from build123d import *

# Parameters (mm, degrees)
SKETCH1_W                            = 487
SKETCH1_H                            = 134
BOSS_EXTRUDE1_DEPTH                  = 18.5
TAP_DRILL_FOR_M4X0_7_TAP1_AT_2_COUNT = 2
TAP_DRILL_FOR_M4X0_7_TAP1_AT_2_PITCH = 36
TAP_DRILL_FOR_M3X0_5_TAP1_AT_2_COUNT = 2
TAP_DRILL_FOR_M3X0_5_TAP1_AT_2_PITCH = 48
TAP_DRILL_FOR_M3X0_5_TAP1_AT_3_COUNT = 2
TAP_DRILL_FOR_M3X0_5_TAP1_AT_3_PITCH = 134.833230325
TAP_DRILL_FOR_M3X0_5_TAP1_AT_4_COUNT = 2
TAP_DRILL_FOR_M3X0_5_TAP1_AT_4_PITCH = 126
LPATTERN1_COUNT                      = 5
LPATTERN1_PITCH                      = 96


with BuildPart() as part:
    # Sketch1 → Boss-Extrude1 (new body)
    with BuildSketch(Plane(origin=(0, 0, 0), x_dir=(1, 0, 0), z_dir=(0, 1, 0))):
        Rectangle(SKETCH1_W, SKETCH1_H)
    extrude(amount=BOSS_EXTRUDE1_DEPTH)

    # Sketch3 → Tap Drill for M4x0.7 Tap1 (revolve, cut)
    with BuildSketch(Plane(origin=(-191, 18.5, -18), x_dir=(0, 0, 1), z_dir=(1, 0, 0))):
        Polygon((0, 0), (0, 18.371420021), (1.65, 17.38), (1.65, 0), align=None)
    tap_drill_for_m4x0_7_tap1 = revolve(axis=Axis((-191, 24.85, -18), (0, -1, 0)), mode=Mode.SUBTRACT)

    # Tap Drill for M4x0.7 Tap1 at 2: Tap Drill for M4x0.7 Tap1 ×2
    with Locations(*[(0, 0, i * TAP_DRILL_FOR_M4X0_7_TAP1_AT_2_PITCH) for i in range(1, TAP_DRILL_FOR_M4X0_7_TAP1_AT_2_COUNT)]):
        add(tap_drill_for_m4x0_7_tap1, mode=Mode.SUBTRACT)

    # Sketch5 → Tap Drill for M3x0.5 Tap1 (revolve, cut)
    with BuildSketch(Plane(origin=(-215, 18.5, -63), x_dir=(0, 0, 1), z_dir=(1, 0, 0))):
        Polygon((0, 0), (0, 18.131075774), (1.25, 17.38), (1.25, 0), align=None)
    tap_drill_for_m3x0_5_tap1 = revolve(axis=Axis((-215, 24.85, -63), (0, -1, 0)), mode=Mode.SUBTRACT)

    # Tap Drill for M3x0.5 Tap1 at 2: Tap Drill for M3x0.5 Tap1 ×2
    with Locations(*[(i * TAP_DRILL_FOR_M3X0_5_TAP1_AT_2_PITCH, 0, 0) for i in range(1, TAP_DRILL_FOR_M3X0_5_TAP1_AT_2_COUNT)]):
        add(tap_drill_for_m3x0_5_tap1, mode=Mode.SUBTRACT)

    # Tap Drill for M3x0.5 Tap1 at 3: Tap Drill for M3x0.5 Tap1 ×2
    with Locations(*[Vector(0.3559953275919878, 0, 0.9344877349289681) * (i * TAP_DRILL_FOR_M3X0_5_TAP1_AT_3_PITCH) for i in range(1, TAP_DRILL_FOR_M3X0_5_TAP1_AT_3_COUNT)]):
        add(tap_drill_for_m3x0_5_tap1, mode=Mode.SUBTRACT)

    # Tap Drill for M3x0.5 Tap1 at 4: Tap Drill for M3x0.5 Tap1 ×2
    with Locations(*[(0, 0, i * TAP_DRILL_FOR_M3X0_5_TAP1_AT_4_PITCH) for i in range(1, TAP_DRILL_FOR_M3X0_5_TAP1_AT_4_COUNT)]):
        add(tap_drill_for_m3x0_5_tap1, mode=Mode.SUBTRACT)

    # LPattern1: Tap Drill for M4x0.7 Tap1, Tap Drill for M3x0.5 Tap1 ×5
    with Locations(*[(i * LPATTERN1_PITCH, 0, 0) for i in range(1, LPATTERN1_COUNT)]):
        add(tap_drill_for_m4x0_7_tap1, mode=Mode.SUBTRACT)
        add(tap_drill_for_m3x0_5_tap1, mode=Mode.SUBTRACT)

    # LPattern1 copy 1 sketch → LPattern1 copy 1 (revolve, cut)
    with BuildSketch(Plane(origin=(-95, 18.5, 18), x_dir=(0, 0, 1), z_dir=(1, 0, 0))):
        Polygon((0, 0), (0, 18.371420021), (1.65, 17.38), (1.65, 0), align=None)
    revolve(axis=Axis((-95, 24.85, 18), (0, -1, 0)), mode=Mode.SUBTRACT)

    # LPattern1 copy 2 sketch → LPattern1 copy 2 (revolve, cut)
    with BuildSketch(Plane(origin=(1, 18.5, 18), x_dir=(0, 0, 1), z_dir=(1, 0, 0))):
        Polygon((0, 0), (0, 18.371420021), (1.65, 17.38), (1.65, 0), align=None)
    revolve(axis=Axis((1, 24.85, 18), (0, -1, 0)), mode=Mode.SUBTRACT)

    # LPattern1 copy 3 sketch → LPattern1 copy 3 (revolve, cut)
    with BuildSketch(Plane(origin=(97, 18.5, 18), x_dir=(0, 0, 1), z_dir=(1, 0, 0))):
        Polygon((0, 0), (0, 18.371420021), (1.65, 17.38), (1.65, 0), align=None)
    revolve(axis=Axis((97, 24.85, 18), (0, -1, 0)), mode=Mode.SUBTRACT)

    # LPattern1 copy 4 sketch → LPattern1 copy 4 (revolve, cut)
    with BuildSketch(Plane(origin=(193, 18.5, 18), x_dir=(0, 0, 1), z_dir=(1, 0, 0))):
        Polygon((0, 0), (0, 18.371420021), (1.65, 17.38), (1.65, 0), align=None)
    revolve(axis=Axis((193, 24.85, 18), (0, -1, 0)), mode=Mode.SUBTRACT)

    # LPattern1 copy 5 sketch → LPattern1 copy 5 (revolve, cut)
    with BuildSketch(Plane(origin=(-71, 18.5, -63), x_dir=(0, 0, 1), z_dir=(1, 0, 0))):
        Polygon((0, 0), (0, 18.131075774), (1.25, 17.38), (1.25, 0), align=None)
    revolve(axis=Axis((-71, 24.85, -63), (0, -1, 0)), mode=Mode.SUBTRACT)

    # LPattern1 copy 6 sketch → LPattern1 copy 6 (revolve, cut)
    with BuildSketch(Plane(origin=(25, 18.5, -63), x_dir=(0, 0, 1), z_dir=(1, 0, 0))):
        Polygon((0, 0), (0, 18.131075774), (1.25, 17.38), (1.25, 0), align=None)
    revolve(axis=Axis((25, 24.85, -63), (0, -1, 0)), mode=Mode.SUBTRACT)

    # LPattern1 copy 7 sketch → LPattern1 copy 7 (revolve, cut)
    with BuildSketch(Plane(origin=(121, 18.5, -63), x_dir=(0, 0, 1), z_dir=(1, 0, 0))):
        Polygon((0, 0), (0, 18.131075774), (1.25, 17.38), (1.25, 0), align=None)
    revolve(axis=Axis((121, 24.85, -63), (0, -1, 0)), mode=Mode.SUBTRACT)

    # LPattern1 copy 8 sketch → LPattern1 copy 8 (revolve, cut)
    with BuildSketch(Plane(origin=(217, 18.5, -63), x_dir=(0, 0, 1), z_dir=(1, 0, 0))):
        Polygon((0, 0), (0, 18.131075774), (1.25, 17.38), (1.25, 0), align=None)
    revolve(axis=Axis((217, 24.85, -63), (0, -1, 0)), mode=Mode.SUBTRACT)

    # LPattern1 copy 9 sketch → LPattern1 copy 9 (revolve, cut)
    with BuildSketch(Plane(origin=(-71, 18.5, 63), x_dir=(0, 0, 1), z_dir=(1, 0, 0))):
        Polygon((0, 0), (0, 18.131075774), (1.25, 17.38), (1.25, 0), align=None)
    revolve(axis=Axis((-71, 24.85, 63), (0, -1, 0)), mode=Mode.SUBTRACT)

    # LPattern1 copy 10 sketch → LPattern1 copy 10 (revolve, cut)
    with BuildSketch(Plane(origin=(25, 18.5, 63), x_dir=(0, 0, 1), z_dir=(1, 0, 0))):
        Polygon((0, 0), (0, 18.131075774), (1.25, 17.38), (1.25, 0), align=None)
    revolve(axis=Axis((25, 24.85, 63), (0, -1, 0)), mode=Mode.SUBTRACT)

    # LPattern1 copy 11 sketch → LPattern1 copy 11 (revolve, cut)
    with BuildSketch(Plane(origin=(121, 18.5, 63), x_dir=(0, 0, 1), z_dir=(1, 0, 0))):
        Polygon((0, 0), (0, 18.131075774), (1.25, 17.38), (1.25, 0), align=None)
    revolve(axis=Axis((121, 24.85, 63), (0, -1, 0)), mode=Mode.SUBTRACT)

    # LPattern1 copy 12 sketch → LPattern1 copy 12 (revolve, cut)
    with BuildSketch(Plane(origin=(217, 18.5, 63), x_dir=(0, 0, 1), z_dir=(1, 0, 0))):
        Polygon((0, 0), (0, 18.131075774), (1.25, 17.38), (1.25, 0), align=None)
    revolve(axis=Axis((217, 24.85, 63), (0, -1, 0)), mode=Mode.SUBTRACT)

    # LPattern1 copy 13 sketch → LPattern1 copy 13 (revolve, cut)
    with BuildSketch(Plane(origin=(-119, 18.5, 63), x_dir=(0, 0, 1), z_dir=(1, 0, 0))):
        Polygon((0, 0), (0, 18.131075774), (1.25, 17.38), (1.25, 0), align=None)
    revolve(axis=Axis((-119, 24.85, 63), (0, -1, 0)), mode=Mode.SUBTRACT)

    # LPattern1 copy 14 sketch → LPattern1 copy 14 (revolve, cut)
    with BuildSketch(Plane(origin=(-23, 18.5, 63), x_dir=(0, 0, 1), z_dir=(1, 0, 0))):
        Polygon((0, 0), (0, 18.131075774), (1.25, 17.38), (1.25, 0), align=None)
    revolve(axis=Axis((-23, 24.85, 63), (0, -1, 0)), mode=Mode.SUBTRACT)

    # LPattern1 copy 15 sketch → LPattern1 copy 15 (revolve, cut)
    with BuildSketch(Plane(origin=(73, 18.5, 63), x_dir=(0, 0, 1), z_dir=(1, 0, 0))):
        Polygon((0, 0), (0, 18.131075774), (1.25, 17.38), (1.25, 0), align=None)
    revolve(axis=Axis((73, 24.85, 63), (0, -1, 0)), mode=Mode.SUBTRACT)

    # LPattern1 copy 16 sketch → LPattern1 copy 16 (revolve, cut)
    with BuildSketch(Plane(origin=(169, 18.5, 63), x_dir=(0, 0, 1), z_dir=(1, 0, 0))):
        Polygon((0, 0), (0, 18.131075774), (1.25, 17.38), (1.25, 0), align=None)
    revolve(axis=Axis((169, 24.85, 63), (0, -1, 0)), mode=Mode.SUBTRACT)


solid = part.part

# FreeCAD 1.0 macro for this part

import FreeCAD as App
import Part
import Sketcher
Q = App.Units.Quantity

doc = App.newDocument("Part")
body = doc.addObject("PartDesign::Body", "Body")

sketch1 = body.newObject("Sketcher::SketchObject", "Sketch")
sketch1.AttachmentSupport = (doc.getObject("XZ_Plane"), [""])
sketch1.MapMode = "FlatFace"
sketch1.addGeometry(Part.LineSegment(App.Vector(-244, -67, 0), App.Vector(-244, 67, 0)), False)
sketch1.addGeometry(Part.LineSegment(App.Vector(-244, 67, 0), App.Vector(244, 67, 0)), False)
sketch1.addGeometry(Part.LineSegment(App.Vector(244, 67, 0), App.Vector(244, -67, 0)), False)
sketch1.addGeometry(Part.LineSegment(App.Vector(244, -67, 0), App.Vector(-244, -67, 0)), False)
sketch1.addConstraint(Sketcher.Constraint("Coincident", 0, 2, 1, 1))
sketch1.addConstraint(Sketcher.Constraint("Coincident", 1, 2, 2, 1))
sketch1.addConstraint(Sketcher.Constraint("Coincident", 2, 2, 3, 1))
sketch1.addConstraint(Sketcher.Constraint("Coincident", 3, 2, 0, 1))
sketch1.addConstraint(Sketcher.Constraint("Vertical", 0))
sketch1.addConstraint(Sketcher.Constraint("Horizontal", 1))
sketch1.addConstraint(Sketcher.Constraint("Vertical", 2))
sketch1.addConstraint(Sketcher.Constraint("Horizontal", 3))
sketch1.addConstraint(Sketcher.Constraint("Symmetric", 0, 2, 2, 2, -1, 1))
sketch1.addConstraint(Sketcher.Constraint("DistanceX", 1, 1, 1, 2, Q("487 mm")))
sketch1.addConstraint(Sketcher.Constraint("DistanceY", 0, 1, 0, 2, Q("134 mm")))
pad1 = body.newObject("PartDesign::Pad", "Pad")
pad1.Profile = sketch1
pad1.Length = 18.5
pad1.Reversed = True

sketch2 = body.newObject("Sketcher::SketchObject", "Sketch001")
sketch2.AttachmentSupport = (doc.getObject("YZ_Plane"), [""])
sketch2.MapMode = "FlatFace"
sketch2.AttachmentOffset = App.Placement(App.Vector(0, 0, -191), App.Rotation())
sketch2.addGeometry(Part.LineSegment(App.Vector(0.1, -18, 0), App.Vector(18.5, -18, 0)), False)
sketch2.addGeometry(Part.LineSegment(App.Vector(18.5, -18, 0), App.Vector(18.5, -16.4, 0)), False)
sketch2.addGeometry(Part.LineSegment(App.Vector(18.5, -16.4, 0), App.Vector(1.1, -16.4, 0)), False)
sketch2.addGeometry(Part.LineSegment(App.Vector(1.1, -16.4, 0), App.Vector(0.1, -18, 0)), False)
sketch2.addGeometry(Part.LineSegment(App.Vector(18.5, -18, 0), App.Vector(0.1, -18, 0)), True)
sketch2.addConstraint(Sketcher.Constraint("Coincident", 0, 2, 1, 1))
sketch2.addConstraint(Sketcher.Constraint("Coincident", 1, 2, 2, 1))
sketch2.addConstraint(Sketcher.Constraint("Coincident", 2, 2, 3, 1))
sketch2.addConstraint(Sketcher.Constraint("Coincident", 3, 2, 0, 1))
sketch2.addConstraint(Sketcher.Constraint("Horizontal", 0))
sketch2.addConstraint(Sketcher.Constraint("Vertical", 1))
sketch2.addConstraint(Sketcher.Constraint("Horizontal", 2))
sketch2.addConstraint(Sketcher.Constraint("Horizontal", 4))
sketch2.addConstraint(Sketcher.Constraint("Coincident", 4, 1, 0, 2))
sketch2.addConstraint(Sketcher.Constraint("Equal", 0, 4))
sketch2.addConstraint(Sketcher.Constraint("Angle", 3, Q("-121 deg")))
sketch2.addConstraint(Sketcher.Constraint("DistanceY", 0, 2, -1, 1, Q("18 mm")))
sketch2.addConstraint(Sketcher.Constraint("DistanceX", 2, 2, 2, 1, Q("17.38 mm")))
sketch2.addConstraint(Sketcher.Constraint("DistanceY", 1, 1, 1, 2, Q("1.65 mm")))
sketch2.addConstraint(Sketcher.Constraint("DistanceX", -1, 1, 0, 2, Q("18.5 mm")))
groove = body.newObject("PartDesign::Groove", "Groove")
groove.Profile = sketch2
groove.ReferenceAxis = (sketch2, ["Axis0"])
groove.Angle = 360
doc.recompute()

linearpattern = body.newObject("PartDesign::LinearPattern", "LinearPattern")
linearpattern.Originals = [groove]
linearpattern.Direction = (doc.getObject("Z_Axis"), [""])
linearpattern.Mode = "offset"
linearpattern.Offset = 36
linearpattern.Occurrences = 2
body.Tip = linearpattern

sketch3 = body.newObject("Sketcher::SketchObject", "Sketch002")
sketch3.AttachmentSupport = (doc.getObject("YZ_Plane"), [""])
sketch3.MapMode = "FlatFace"
sketch3.AttachmentOffset = App.Placement(App.Vector(0, 0, -215), App.Rotation())
sketch3.addGeometry(Part.LineSegment(App.Vector(0.4, -63, 0), App.Vector(18.5, -63, 0)), False)
sketch3.addGeometry(Part.LineSegment(App.Vector(18.5, -63, 0), App.Vector(18.5, -61.8, 0)), False)
sketch3.addGeometry(Part.LineSegment(App.Vector(18.5, -61.8, 0), App.Vector(1.1, -61.8, 0)), False)
sketch3.addGeometry(Part.LineSegment(App.Vector(1.1, -61.8, 0), App.Vector(0.4, -63, 0)), False)
sketch3.addGeometry(Part.LineSegment(App.Vector(18.5, -63, 0), App.Vector(0.4, -63, 0)), True)
sketch3.addConstraint(Sketcher.Constraint("Coincident", 0, 2, 1, 1))
sketch3.addConstraint(Sketcher.Constraint("Coincident", 1, 2, 2, 1))
sketch3.addConstraint(Sketcher.Constraint("Coincident", 2, 2, 3, 1))
sketch3.addConstraint(Sketcher.Constraint("Coincident", 3, 2, 0, 1))
sketch3.addConstraint(Sketcher.Constraint("Horizontal", 0))
sketch3.addConstraint(Sketcher.Constraint("Vertical", 1))
sketch3.addConstraint(Sketcher.Constraint("Horizontal", 2))
sketch3.addConstraint(Sketcher.Constraint("Horizontal", 4))
sketch3.addConstraint(Sketcher.Constraint("Coincident", 4, 1, 0, 2))
sketch3.addConstraint(Sketcher.Constraint("Equal", 0, 4))
sketch3.addConstraint(Sketcher.Constraint("Angle", 3, Q("-121 deg")))
sketch3.addConstraint(Sketcher.Constraint("DistanceY", 0, 2, -1, 1, Q("63 mm")))
sketch3.addConstraint(Sketcher.Constraint("DistanceX", 2, 2, 2, 1, Q("17.38 mm")))
sketch3.addConstraint(Sketcher.Constraint("DistanceY", 1, 1, 1, 2, Q("1.25 mm")))
sketch3.addConstraint(Sketcher.Constraint("DistanceX", -1, 1, 0, 2, Q("18.5 mm")))
groove2 = body.newObject("PartDesign::Groove", "Groove001")
groove2.Profile = sketch3
groove2.ReferenceAxis = (sketch3, ["Axis0"])
groove2.Angle = 360
doc.recompute()

linearpattern2 = body.newObject("PartDesign::LinearPattern", "LinearPattern001")
linearpattern2.Originals = [groove2]
linearpattern2.Direction = (doc.getObject("X_Axis"), [""])
linearpattern2.Mode = "offset"
linearpattern2.Offset = 48
linearpattern2.Occurrences = 2
body.Tip = linearpattern2
doc.recompute()

datumline = body.newObject("PartDesign::Line", "DatumLine")
datumline.Placement = App.Placement(App.Vector(0, 0, 0), App.Rotation(App.Vector(0, 0, 1), App.Vector(0.355995328, 0, 0.934487735)))
linearpattern3 = body.newObject("PartDesign::LinearPattern", "LinearPattern002")
linearpattern3.Originals = [groove2]
linearpattern3.Direction = (datumline, [""])
linearpattern3.Mode = "offset"
linearpattern3.Offset = 134.83323
linearpattern3.Occurrences = 2
body.Tip = linearpattern3
doc.recompute()

linearpattern4 = body.newObject("PartDesign::LinearPattern", "LinearPattern003")
linearpattern4.Originals = [groove2]
linearpattern4.Direction = (doc.getObject("Z_Axis"), [""])
linearpattern4.Mode = "offset"
linearpattern4.Offset = 126
linearpattern4.Occurrences = 2
body.Tip = linearpattern4
doc.recompute()

linearpattern5 = body.newObject("PartDesign::LinearPattern", "LinearPattern004")
linearpattern5.Originals = [groove, groove2]
linearpattern5.Direction = (doc.getObject("X_Axis"), [""])
linearpattern5.Mode = "offset"
linearpattern5.Offset = 96
linearpattern5.Occurrences = 5
body.Tip = linearpattern5

sketch4 = body.newObject("Sketcher::SketchObject", "Sketch003")
sketch4.AttachmentSupport = (doc.getObject("YZ_Plane"), [""])
sketch4.MapMode = "FlatFace"
sketch4.AttachmentOffset = App.Placement(App.Vector(0, 0, -95), App.Rotation())
sketch4.addGeometry(Part.LineSegment(App.Vector(0.1, 18, 0), App.Vector(18.5, 18, 0)), False)
sketch4.addGeometry(Part.LineSegment(App.Vector(18.5, 18, 0), App.Vector(18.5, 19.6, 0)), False)
sketch4.addGeometry(Part.LineSegment(App.Vector(18.5, 19.6, 0), App.Vector(1.1, 19.6, 0)), False)
sketch4.addGeometry(Part.LineSegment(App.Vector(1.1, 19.6, 0), App.Vector(0.1, 18, 0)), False)
sketch4.addGeometry(Part.LineSegment(App.Vector(18.5, 18, 0), App.Vector(0.1, 18, 0)), True)
sketch4.addConstraint(Sketcher.Constraint("Coincident", 0, 2, 1, 1))
sketch4.addConstraint(Sketcher.Constraint("Coincident", 1, 2, 2, 1))
sketch4.addConstraint(Sketcher.Constraint("Coincident", 2, 2, 3, 1))
sketch4.addConstraint(Sketcher.Constraint("Coincident", 3, 2, 0, 1))
sketch4.addConstraint(Sketcher.Constraint("Horizontal", 0))
sketch4.addConstraint(Sketcher.Constraint("Vertical", 1))
sketch4.addConstraint(Sketcher.Constraint("Horizontal", 2))
sketch4.addConstraint(Sketcher.Constraint("Horizontal", 4))
sketch4.addConstraint(Sketcher.Constraint("Coincident", 4, 1, 0, 2))
sketch4.addConstraint(Sketcher.Constraint("Equal", 0, 4))
sketch4.addConstraint(Sketcher.Constraint("Angle", 3, Q("-121 deg")))
sketch4.addConstraint(Sketcher.Constraint("DistanceY", -1, 1, 0, 2, Q("18 mm")))
sketch4.addConstraint(Sketcher.Constraint("DistanceX", 2, 2, 2, 1, Q("17.38 mm")))
sketch4.addConstraint(Sketcher.Constraint("DistanceY", 1, 1, 1, 2, Q("1.65 mm")))
sketch4.addConstraint(Sketcher.Constraint("DistanceX", -1, 1, 0, 2, Q("18.5 mm")))
groove3 = body.newObject("PartDesign::Groove", "Groove002")
groove3.Profile = sketch4
groove3.ReferenceAxis = (sketch4, ["Axis0"])
groove3.Angle = 360

sketch5 = body.newObject("Sketcher::SketchObject", "Sketch004")
sketch5.AttachmentSupport = (doc.getObject("YZ_Plane"), [""])
sketch5.MapMode = "FlatFace"
sketch5.AttachmentOffset = App.Placement(App.Vector(0, 0, 1), App.Rotation())
sketch5.addGeometry(Part.LineSegment(App.Vector(0.1, 18, 0), App.Vector(18.5, 18, 0)), False)
sketch5.addGeometry(Part.LineSegment(App.Vector(18.5, 18, 0), App.Vector(18.5, 19.6, 0)), False)
sketch5.addGeometry(Part.LineSegment(App.Vector(18.5, 19.6, 0), App.Vector(1.1, 19.6, 0)), False)
sketch5.addGeometry(Part.LineSegment(App.Vector(1.1, 19.6, 0), App.Vector(0.1, 18, 0)), False)
sketch5.addGeometry(Part.LineSegment(App.Vector(18.5, 18, 0), App.Vector(0.1, 18, 0)), True)
sketch5.addConstraint(Sketcher.Constraint("Coincident", 0, 2, 1, 1))
sketch5.addConstraint(Sketcher.Constraint("Coincident", 1, 2, 2, 1))
sketch5.addConstraint(Sketcher.Constraint("Coincident", 2, 2, 3, 1))
sketch5.addConstraint(Sketcher.Constraint("Coincident", 3, 2, 0, 1))
sketch5.addConstraint(Sketcher.Constraint("Horizontal", 0))
sketch5.addConstraint(Sketcher.Constraint("Vertical", 1))
sketch5.addConstraint(Sketcher.Constraint("Horizontal", 2))
sketch5.addConstraint(Sketcher.Constraint("Horizontal", 4))
sketch5.addConstraint(Sketcher.Constraint("Coincident", 4, 1, 0, 2))
sketch5.addConstraint(Sketcher.Constraint("Equal", 0, 4))
sketch5.addConstraint(Sketcher.Constraint("Angle", 3, Q("-121 deg")))
sketch5.addConstraint(Sketcher.Constraint("DistanceY", -1, 1, 0, 2, Q("18 mm")))
sketch5.addConstraint(Sketcher.Constraint("DistanceX", 2, 2, 2, 1, Q("17.38 mm")))
sketch5.addConstraint(Sketcher.Constraint("DistanceY", 1, 1, 1, 2, Q("1.65 mm")))
sketch5.addConstraint(Sketcher.Constraint("DistanceX", -1, 1, 0, 2, Q("18.5 mm")))
groove4 = body.newObject("PartDesign::Groove", "Groove003")
groove4.Profile = sketch5
groove4.ReferenceAxis = (sketch5, ["Axis0"])
groove4.Angle = 360

sketch6 = body.newObject("Sketcher::SketchObject", "Sketch005")
sketch6.AttachmentSupport = (doc.getObject("YZ_Plane"), [""])
sketch6.MapMode = "FlatFace"
sketch6.AttachmentOffset = App.Placement(App.Vector(0, 0, 97), App.Rotation())
sketch6.addGeometry(Part.LineSegment(App.Vector(0.1, 18, 0), App.Vector(18.5, 18, 0)), False)
sketch6.addGeometry(Part.LineSegment(App.Vector(18.5, 18, 0), App.Vector(18.5, 19.6, 0)), False)
sketch6.addGeometry(Part.LineSegment(App.Vector(18.5, 19.6, 0), App.Vector(1.1, 19.6, 0)), False)
sketch6.addGeometry(Part.LineSegment(App.Vector(1.1, 19.6, 0), App.Vector(0.1, 18, 0)), False)
sketch6.addGeometry(Part.LineSegment(App.Vector(18.5, 18, 0), App.Vector(0.1, 18, 0)), True)
sketch6.addConstraint(Sketcher.Constraint("Coincident", 0, 2, 1, 1))
sketch6.addConstraint(Sketcher.Constraint("Coincident", 1, 2, 2, 1))
sketch6.addConstraint(Sketcher.Constraint("Coincident", 2, 2, 3, 1))
sketch6.addConstraint(Sketcher.Constraint("Coincident", 3, 2, 0, 1))
sketch6.addConstraint(Sketcher.Constraint("Horizontal", 0))
sketch6.addConstraint(Sketcher.Constraint("Vertical", 1))
sketch6.addConstraint(Sketcher.Constraint("Horizontal", 2))
sketch6.addConstraint(Sketcher.Constraint("Horizontal", 4))
sketch6.addConstraint(Sketcher.Constraint("Coincident", 4, 1, 0, 2))
sketch6.addConstraint(Sketcher.Constraint("Equal", 0, 4))
sketch6.addConstraint(Sketcher.Constraint("Angle", 3, Q("-121 deg")))
sketch6.addConstraint(Sketcher.Constraint("DistanceY", -1, 1, 0, 2, Q("18 mm")))
sketch6.addConstraint(Sketcher.Constraint("DistanceX", 2, 2, 2, 1, Q("17.38 mm")))
sketch6.addConstraint(Sketcher.Constraint("DistanceY", 1, 1, 1, 2, Q("1.65 mm")))
sketch6.addConstraint(Sketcher.Constraint("DistanceX", -1, 1, 0, 2, Q("18.5 mm")))
groove5 = body.newObject("PartDesign::Groove", "Groove004")
groove5.Profile = sketch6
groove5.ReferenceAxis = (sketch6, ["Axis0"])
groove5.Angle = 360

sketch7 = body.newObject("Sketcher::SketchObject", "Sketch006")
sketch7.AttachmentSupport = (doc.getObject("YZ_Plane"), [""])
sketch7.MapMode = "FlatFace"
sketch7.AttachmentOffset = App.Placement(App.Vector(0, 0, 193), App.Rotation())
sketch7.addGeometry(Part.LineSegment(App.Vector(0.1, 18, 0), App.Vector(18.5, 18, 0)), False)
sketch7.addGeometry(Part.LineSegment(App.Vector(18.5, 18, 0), App.Vector(18.5, 19.6, 0)), False)
sketch7.addGeometry(Part.LineSegment(App.Vector(18.5, 19.6, 0), App.Vector(1.1, 19.6, 0)), False)
sketch7.addGeometry(Part.LineSegment(App.Vector(1.1, 19.6, 0), App.Vector(0.1, 18, 0)), False)
sketch7.addGeometry(Part.LineSegment(App.Vector(18.5, 18, 0), App.Vector(0.1, 18, 0)), True)
sketch7.addConstraint(Sketcher.Constraint("Coincident", 0, 2, 1, 1))
sketch7.addConstraint(Sketcher.Constraint("Coincident", 1, 2, 2, 1))
sketch7.addConstraint(Sketcher.Constraint("Coincident", 2, 2, 3, 1))
sketch7.addConstraint(Sketcher.Constraint("Coincident", 3, 2, 0, 1))
sketch7.addConstraint(Sketcher.Constraint("Horizontal", 0))
sketch7.addConstraint(Sketcher.Constraint("Vertical", 1))
sketch7.addConstraint(Sketcher.Constraint("Horizontal", 2))
sketch7.addConstraint(Sketcher.Constraint("Horizontal", 4))
sketch7.addConstraint(Sketcher.Constraint("Coincident", 4, 1, 0, 2))
sketch7.addConstraint(Sketcher.Constraint("Equal", 0, 4))
sketch7.addConstraint(Sketcher.Constraint("Angle", 3, Q("-121 deg")))
sketch7.addConstraint(Sketcher.Constraint("DistanceY", -1, 1, 0, 2, Q("18 mm")))
sketch7.addConstraint(Sketcher.Constraint("DistanceX", 2, 2, 2, 1, Q("17.38 mm")))
sketch7.addConstraint(Sketcher.Constraint("DistanceY", 1, 1, 1, 2, Q("1.65 mm")))
sketch7.addConstraint(Sketcher.Constraint("DistanceX", -1, 1, 0, 2, Q("18.5 mm")))
groove6 = body.newObject("PartDesign::Groove", "Groove005")
groove6.Profile = sketch7
groove6.ReferenceAxis = (sketch7, ["Axis0"])
groove6.Angle = 360

sketch8 = body.newObject("Sketcher::SketchObject", "Sketch007")
sketch8.AttachmentSupport = (doc.getObject("YZ_Plane"), [""])
sketch8.MapMode = "FlatFace"
sketch8.AttachmentOffset = App.Placement(App.Vector(0, 0, -71), App.Rotation())
sketch8.addGeometry(Part.LineSegment(App.Vector(0.4, -63, 0), App.Vector(18.5, -63, 0)), False)
sketch8.addGeometry(Part.LineSegment(App.Vector(18.5, -63, 0), App.Vector(18.5, -61.8, 0)), False)
sketch8.addGeometry(Part.LineSegment(App.Vector(18.5, -61.8, 0), App.Vector(1.1, -61.8, 0)), False)
sketch8.addGeometry(Part.LineSegment(App.Vector(1.1, -61.8, 0), App.Vector(0.4, -63, 0)), False)
sketch8.addGeometry(Part.LineSegment(App.Vector(18.5, -63, 0), App.Vector(0.4, -63, 0)), True)
sketch8.addConstraint(Sketcher.Constraint("Coincident", 0, 2, 1, 1))
sketch8.addConstraint(Sketcher.Constraint("Coincident", 1, 2, 2, 1))
sketch8.addConstraint(Sketcher.Constraint("Coincident", 2, 2, 3, 1))
sketch8.addConstraint(Sketcher.Constraint("Coincident", 3, 2, 0, 1))
sketch8.addConstraint(Sketcher.Constraint("Horizontal", 0))
sketch8.addConstraint(Sketcher.Constraint("Vertical", 1))
sketch8.addConstraint(Sketcher.Constraint("Horizontal", 2))
sketch8.addConstraint(Sketcher.Constraint("Horizontal", 4))
sketch8.addConstraint(Sketcher.Constraint("Coincident", 4, 1, 0, 2))
sketch8.addConstraint(Sketcher.Constraint("Equal", 0, 4))
sketch8.addConstraint(Sketcher.Constraint("Angle", 3, Q("-121 deg")))
sketch8.addConstraint(Sketcher.Constraint("DistanceY", 0, 2, -1, 1, Q("63 mm")))
sketch8.addConstraint(Sketcher.Constraint("DistanceX", 2, 2, 2, 1, Q("17.38 mm")))
sketch8.addConstraint(Sketcher.Constraint("DistanceY", 1, 1, 1, 2, Q("1.25 mm")))
sketch8.addConstraint(Sketcher.Constraint("DistanceX", -1, 1, 0, 2, Q("18.5 mm")))
groove7 = body.newObject("PartDesign::Groove", "Groove006")
groove7.Profile = sketch8
groove7.ReferenceAxis = (sketch8, ["Axis0"])
groove7.Angle = 360

sketch9 = body.newObject("Sketcher::SketchObject", "Sketch008")
sketch9.AttachmentSupport = (doc.getObject("YZ_Plane"), [""])
sketch9.MapMode = "FlatFace"
sketch9.AttachmentOffset = App.Placement(App.Vector(0, 0, 25), App.Rotation())
sketch9.addGeometry(Part.LineSegment(App.Vector(0.4, -63, 0), App.Vector(18.5, -63, 0)), False)
sketch9.addGeometry(Part.LineSegment(App.Vector(18.5, -63, 0), App.Vector(18.5, -61.8, 0)), False)
sketch9.addGeometry(Part.LineSegment(App.Vector(18.5, -61.8, 0), App.Vector(1.1, -61.8, 0)), False)
sketch9.addGeometry(Part.LineSegment(App.Vector(1.1, -61.8, 0), App.Vector(0.4, -63, 0)), False)
sketch9.addGeometry(Part.LineSegment(App.Vector(18.5, -63, 0), App.Vector(0.4, -63, 0)), True)
sketch9.addConstraint(Sketcher.Constraint("Coincident", 0, 2, 1, 1))
sketch9.addConstraint(Sketcher.Constraint("Coincident", 1, 2, 2, 1))
sketch9.addConstraint(Sketcher.Constraint("Coincident", 2, 2, 3, 1))
sketch9.addConstraint(Sketcher.Constraint("Coincident", 3, 2, 0, 1))
sketch9.addConstraint(Sketcher.Constraint("Horizontal", 0))
sketch9.addConstraint(Sketcher.Constraint("Vertical", 1))
sketch9.addConstraint(Sketcher.Constraint("Horizontal", 2))
sketch9.addConstraint(Sketcher.Constraint("Horizontal", 4))
sketch9.addConstraint(Sketcher.Constraint("Coincident", 4, 1, 0, 2))
sketch9.addConstraint(Sketcher.Constraint("Equal", 0, 4))
sketch9.addConstraint(Sketcher.Constraint("Angle", 3, Q("-121 deg")))
sketch9.addConstraint(Sketcher.Constraint("DistanceY", 0, 2, -1, 1, Q("63 mm")))
sketch9.addConstraint(Sketcher.Constraint("DistanceX", 2, 2, 2, 1, Q("17.38 mm")))
sketch9.addConstraint(Sketcher.Constraint("DistanceY", 1, 1, 1, 2, Q("1.25 mm")))
sketch9.addConstraint(Sketcher.Constraint("DistanceX", -1, 1, 0, 2, Q("18.5 mm")))
groove8 = body.newObject("PartDesign::Groove", "Groove007")
groove8.Profile = sketch9
groove8.ReferenceAxis = (sketch9, ["Axis0"])
groove8.Angle = 360

sketch10 = body.newObject("Sketcher::SketchObject", "Sketch009")
sketch10.AttachmentSupport = (doc.getObject("YZ_Plane"), [""])
sketch10.MapMode = "FlatFace"
sketch10.AttachmentOffset = App.Placement(App.Vector(0, 0, 121), App.Rotation())
sketch10.addGeometry(Part.LineSegment(App.Vector(0.4, -63, 0), App.Vector(18.5, -63, 0)), False)
sketch10.addGeometry(Part.LineSegment(App.Vector(18.5, -63, 0), App.Vector(18.5, -61.8, 0)), False)
sketch10.addGeometry(Part.LineSegment(App.Vector(18.5, -61.8, 0), App.Vector(1.1, -61.8, 0)), False)
sketch10.addGeometry(Part.LineSegment(App.Vector(1.1, -61.8, 0), App.Vector(0.4, -63, 0)), False)
sketch10.addGeometry(Part.LineSegment(App.Vector(18.5, -63, 0), App.Vector(0.4, -63, 0)), True)
sketch10.addConstraint(Sketcher.Constraint("Coincident", 0, 2, 1, 1))
sketch10.addConstraint(Sketcher.Constraint("Coincident", 1, 2, 2, 1))
sketch10.addConstraint(Sketcher.Constraint("Coincident", 2, 2, 3, 1))
sketch10.addConstraint(Sketcher.Constraint("Coincident", 3, 2, 0, 1))
sketch10.addConstraint(Sketcher.Constraint("Horizontal", 0))
sketch10.addConstraint(Sketcher.Constraint("Vertical", 1))
sketch10.addConstraint(Sketcher.Constraint("Horizontal", 2))
sketch10.addConstraint(Sketcher.Constraint("Horizontal", 4))
sketch10.addConstraint(Sketcher.Constraint("Coincident", 4, 1, 0, 2))
sketch10.addConstraint(Sketcher.Constraint("Equal", 0, 4))
sketch10.addConstraint(Sketcher.Constraint("Angle", 3, Q("-121 deg")))
sketch10.addConstraint(Sketcher.Constraint("DistanceY", 0, 2, -1, 1, Q("63 mm")))
sketch10.addConstraint(Sketcher.Constraint("DistanceX", 2, 2, 2, 1, Q("17.38 mm")))
sketch10.addConstraint(Sketcher.Constraint("DistanceY", 1, 1, 1, 2, Q("1.25 mm")))
sketch10.addConstraint(Sketcher.Constraint("DistanceX", -1, 1, 0, 2, Q("18.5 mm")))
groove9 = body.newObject("PartDesign::Groove", "Groove008")
groove9.Profile = sketch10
groove9.ReferenceAxis = (sketch10, ["Axis0"])
groove9.Angle = 360

sketch11 = body.newObject("Sketcher::SketchObject", "Sketch010")
sketch11.AttachmentSupport = (doc.getObject("YZ_Plane"), [""])
sketch11.MapMode = "FlatFace"
sketch11.AttachmentOffset = App.Placement(App.Vector(0, 0, 217), App.Rotation())
sketch11.addGeometry(Part.LineSegment(App.Vector(0.4, -63, 0), App.Vector(18.5, -63, 0)), False)
sketch11.addGeometry(Part.LineSegment(App.Vector(18.5, -63, 0), App.Vector(18.5, -61.8, 0)), False)
sketch11.addGeometry(Part.LineSegment(App.Vector(18.5, -61.8, 0), App.Vector(1.1, -61.8, 0)), False)
sketch11.addGeometry(Part.LineSegment(App.Vector(1.1, -61.8, 0), App.Vector(0.4, -63, 0)), False)
sketch11.addGeometry(Part.LineSegment(App.Vector(18.5, -63, 0), App.Vector(0.4, -63, 0)), True)
sketch11.addConstraint(Sketcher.Constraint("Coincident", 0, 2, 1, 1))
sketch11.addConstraint(Sketcher.Constraint("Coincident", 1, 2, 2, 1))
sketch11.addConstraint(Sketcher.Constraint("Coincident", 2, 2, 3, 1))
sketch11.addConstraint(Sketcher.Constraint("Coincident", 3, 2, 0, 1))
sketch11.addConstraint(Sketcher.Constraint("Horizontal", 0))
sketch11.addConstraint(Sketcher.Constraint("Vertical", 1))
sketch11.addConstraint(Sketcher.Constraint("Horizontal", 2))
sketch11.addConstraint(Sketcher.Constraint("Horizontal", 4))
sketch11.addConstraint(Sketcher.Constraint("Coincident", 4, 1, 0, 2))
sketch11.addConstraint(Sketcher.Constraint("Equal", 0, 4))
sketch11.addConstraint(Sketcher.Constraint("Angle", 3, Q("-121 deg")))
sketch11.addConstraint(Sketcher.Constraint("DistanceY", 0, 2, -1, 1, Q("63 mm")))
sketch11.addConstraint(Sketcher.Constraint("DistanceX", 2, 2, 2, 1, Q("17.38 mm")))
sketch11.addConstraint(Sketcher.Constraint("DistanceY", 1, 1, 1, 2, Q("1.25 mm")))
sketch11.addConstraint(Sketcher.Constraint("DistanceX", -1, 1, 0, 2, Q("18.5 mm")))
groove10 = body.newObject("PartDesign::Groove", "Groove009")
groove10.Profile = sketch11
groove10.ReferenceAxis = (sketch11, ["Axis0"])
groove10.Angle = 360

sketch12 = body.newObject("Sketcher::SketchObject", "Sketch011")
sketch12.AttachmentSupport = (doc.getObject("YZ_Plane"), [""])
sketch12.MapMode = "FlatFace"
sketch12.AttachmentOffset = App.Placement(App.Vector(0, 0, -71), App.Rotation())
sketch12.addGeometry(Part.LineSegment(App.Vector(0.4, 63, 0), App.Vector(18.5, 63, 0)), False)
sketch12.addGeometry(Part.LineSegment(App.Vector(18.5, 63, 0), App.Vector(18.5, 64.2, 0)), False)
sketch12.addGeometry(Part.LineSegment(App.Vector(18.5, 64.2, 0), App.Vector(1.1, 64.2, 0)), False)
sketch12.addGeometry(Part.LineSegment(App.Vector(1.1, 64.2, 0), App.Vector(0.4, 63, 0)), False)
sketch12.addGeometry(Part.LineSegment(App.Vector(18.5, 63, 0), App.Vector(0.4, 63, 0)), True)
sketch12.addConstraint(Sketcher.Constraint("Coincident", 0, 2, 1, 1))
sketch12.addConstraint(Sketcher.Constraint("Coincident", 1, 2, 2, 1))
sketch12.addConstraint(Sketcher.Constraint("Coincident", 2, 2, 3, 1))
sketch12.addConstraint(Sketcher.Constraint("Coincident", 3, 2, 0, 1))
sketch12.addConstraint(Sketcher.Constraint("Horizontal", 0))
sketch12.addConstraint(Sketcher.Constraint("Vertical", 1))
sketch12.addConstraint(Sketcher.Constraint("Horizontal", 2))
sketch12.addConstraint(Sketcher.Constraint("Horizontal", 4))
sketch12.addConstraint(Sketcher.Constraint("Coincident", 4, 1, 0, 2))
sketch12.addConstraint(Sketcher.Constraint("Equal", 0, 4))
sketch12.addConstraint(Sketcher.Constraint("Angle", 3, Q("-121 deg")))
sketch12.addConstraint(Sketcher.Constraint("DistanceY", -1, 1, 0, 2, Q("63 mm")))
sketch12.addConstraint(Sketcher.Constraint("DistanceX", 2, 2, 2, 1, Q("17.38 mm")))
sketch12.addConstraint(Sketcher.Constraint("DistanceY", 1, 1, 1, 2, Q("1.25 mm")))
sketch12.addConstraint(Sketcher.Constraint("DistanceX", -1, 1, 0, 2, Q("18.5 mm")))
groove11 = body.newObject("PartDesign::Groove", "Groove010")
groove11.Profile = sketch12
groove11.ReferenceAxis = (sketch12, ["Axis0"])
groove11.Angle = 360

sketch13 = body.newObject("Sketcher::SketchObject", "Sketch012")
sketch13.AttachmentSupport = (doc.getObject("YZ_Plane"), [""])
sketch13.MapMode = "FlatFace"
sketch13.AttachmentOffset = App.Placement(App.Vector(0, 0, 25), App.Rotation())
sketch13.addGeometry(Part.LineSegment(App.Vector(0.4, 63, 0), App.Vector(18.5, 63, 0)), False)
sketch13.addGeometry(Part.LineSegment(App.Vector(18.5, 63, 0), App.Vector(18.5, 64.2, 0)), False)
sketch13.addGeometry(Part.LineSegment(App.Vector(18.5, 64.2, 0), App.Vector(1.1, 64.2, 0)), False)
sketch13.addGeometry(Part.LineSegment(App.Vector(1.1, 64.2, 0), App.Vector(0.4, 63, 0)), False)
sketch13.addGeometry(Part.LineSegment(App.Vector(18.5, 63, 0), App.Vector(0.4, 63, 0)), True)
sketch13.addConstraint(Sketcher.Constraint("Coincident", 0, 2, 1, 1))
sketch13.addConstraint(Sketcher.Constraint("Coincident", 1, 2, 2, 1))
sketch13.addConstraint(Sketcher.Constraint("Coincident", 2, 2, 3, 1))
sketch13.addConstraint(Sketcher.Constraint("Coincident", 3, 2, 0, 1))
sketch13.addConstraint(Sketcher.Constraint("Horizontal", 0))
sketch13.addConstraint(Sketcher.Constraint("Vertical", 1))
sketch13.addConstraint(Sketcher.Constraint("Horizontal", 2))
sketch13.addConstraint(Sketcher.Constraint("Horizontal", 4))
sketch13.addConstraint(Sketcher.Constraint("Coincident", 4, 1, 0, 2))
sketch13.addConstraint(Sketcher.Constraint("Equal", 0, 4))
sketch13.addConstraint(Sketcher.Constraint("Angle", 3, Q("-121 deg")))
sketch13.addConstraint(Sketcher.Constraint("DistanceY", -1, 1, 0, 2, Q("63 mm")))
sketch13.addConstraint(Sketcher.Constraint("DistanceX", 2, 2, 2, 1, Q("17.38 mm")))
sketch13.addConstraint(Sketcher.Constraint("DistanceY", 1, 1, 1, 2, Q("1.25 mm")))
sketch13.addConstraint(Sketcher.Constraint("DistanceX", -1, 1, 0, 2, Q("18.5 mm")))
groove12 = body.newObject("PartDesign::Groove", "Groove011")
groove12.Profile = sketch13
groove12.ReferenceAxis = (sketch13, ["Axis0"])
groove12.Angle = 360

sketch14 = body.newObject("Sketcher::SketchObject", "Sketch013")
sketch14.AttachmentSupport = (doc.getObject("YZ_Plane"), [""])
sketch14.MapMode = "FlatFace"
sketch14.AttachmentOffset = App.Placement(App.Vector(0, 0, 121), App.Rotation())
sketch14.addGeometry(Part.LineSegment(App.Vector(0.4, 63, 0), App.Vector(18.5, 63, 0)), False)
sketch14.addGeometry(Part.LineSegment(App.Vector(18.5, 63, 0), App.Vector(18.5, 64.2, 0)), False)
sketch14.addGeometry(Part.LineSegment(App.Vector(18.5, 64.2, 0), App.Vector(1.1, 64.2, 0)), False)
sketch14.addGeometry(Part.LineSegment(App.Vector(1.1, 64.2, 0), App.Vector(0.4, 63, 0)), False)
sketch14.addGeometry(Part.LineSegment(App.Vector(18.5, 63, 0), App.Vector(0.4, 63, 0)), True)
sketch14.addConstraint(Sketcher.Constraint("Coincident", 0, 2, 1, 1))
sketch14.addConstraint(Sketcher.Constraint("Coincident", 1, 2, 2, 1))
sketch14.addConstraint(Sketcher.Constraint("Coincident", 2, 2, 3, 1))
sketch14.addConstraint(Sketcher.Constraint("Coincident", 3, 2, 0, 1))
sketch14.addConstraint(Sketcher.Constraint("Horizontal", 0))
sketch14.addConstraint(Sketcher.Constraint("Vertical", 1))
sketch14.addConstraint(Sketcher.Constraint("Horizontal", 2))
sketch14.addConstraint(Sketcher.Constraint("Horizontal", 4))
sketch14.addConstraint(Sketcher.Constraint("Coincident", 4, 1, 0, 2))
sketch14.addConstraint(Sketcher.Constraint("Equal", 0, 4))
sketch14.addConstraint(Sketcher.Constraint("Angle", 3, Q("-121 deg")))
sketch14.addConstraint(Sketcher.Constraint("DistanceY", -1, 1, 0, 2, Q("63 mm")))
sketch14.addConstraint(Sketcher.Constraint("DistanceX", 2, 2, 2, 1, Q("17.38 mm")))
sketch14.addConstraint(Sketcher.Constraint("DistanceY", 1, 1, 1, 2, Q("1.25 mm")))
sketch14.addConstraint(Sketcher.Constraint("DistanceX", -1, 1, 0, 2, Q("18.5 mm")))
groove13 = body.newObject("PartDesign::Groove", "Groove012")
groove13.Profile = sketch14
groove13.ReferenceAxis = (sketch14, ["Axis0"])
groove13.Angle = 360

sketch15 = body.newObject("Sketcher::SketchObject", "Sketch014")
sketch15.AttachmentSupport = (doc.getObject("YZ_Plane"), [""])
sketch15.MapMode = "FlatFace"
sketch15.AttachmentOffset = App.Placement(App.Vector(0, 0, 217), App.Rotation())
sketch15.addGeometry(Part.LineSegment(App.Vector(0.4, 63, 0), App.Vector(18.5, 63, 0)), False)
sketch15.addGeometry(Part.LineSegment(App.Vector(18.5, 63, 0), App.Vector(18.5, 64.2, 0)), False)
sketch15.addGeometry(Part.LineSegment(App.Vector(18.5, 64.2, 0), App.Vector(1.1, 64.2, 0)), False)
sketch15.addGeometry(Part.LineSegment(App.Vector(1.1, 64.2, 0), App.Vector(0.4, 63, 0)), False)
sketch15.addGeometry(Part.LineSegment(App.Vector(18.5, 63, 0), App.Vector(0.4, 63, 0)), True)
sketch15.addConstraint(Sketcher.Constraint("Coincident", 0, 2, 1, 1))
sketch15.addConstraint(Sketcher.Constraint("Coincident", 1, 2, 2, 1))
sketch15.addConstraint(Sketcher.Constraint("Coincident", 2, 2, 3, 1))
sketch15.addConstraint(Sketcher.Constraint("Coincident", 3, 2, 0, 1))
sketch15.addConstraint(Sketcher.Constraint("Horizontal", 0))
sketch15.addConstraint(Sketcher.Constraint("Vertical", 1))
sketch15.addConstraint(Sketcher.Constraint("Horizontal", 2))
sketch15.addConstraint(Sketcher.Constraint("Horizontal", 4))
sketch15.addConstraint(Sketcher.Constraint("Coincident", 4, 1, 0, 2))
sketch15.addConstraint(Sketcher.Constraint("Equal", 0, 4))
sketch15.addConstraint(Sketcher.Constraint("Angle", 3, Q("-121 deg")))
sketch15.addConstraint(Sketcher.Constraint("DistanceY", -1, 1, 0, 2, Q("63 mm")))
sketch15.addConstraint(Sketcher.Constraint("DistanceX", 2, 2, 2, 1, Q("17.38 mm")))
sketch15.addConstraint(Sketcher.Constraint("DistanceY", 1, 1, 1, 2, Q("1.25 mm")))
sketch15.addConstraint(Sketcher.Constraint("DistanceX", -1, 1, 0, 2, Q("18.5 mm")))
groove14 = body.newObject("PartDesign::Groove", "Groove013")
groove14.Profile = sketch15
groove14.ReferenceAxis = (sketch15, ["Axis0"])
groove14.Angle = 360

sketch16 = body.newObject("Sketcher::SketchObject", "Sketch015")
sketch16.AttachmentSupport = (doc.getObject("YZ_Plane"), [""])
sketch16.MapMode = "FlatFace"
sketch16.AttachmentOffset = App.Placement(App.Vector(0, 0, -119), App.Rotation())
sketch16.addGeometry(Part.LineSegment(App.Vector(0.4, 63, 0), App.Vector(18.5, 63, 0)), False)
sketch16.addGeometry(Part.LineSegment(App.Vector(18.5, 63, 0), App.Vector(18.5, 64.2, 0)), False)
sketch16.addGeometry(Part.LineSegment(App.Vector(18.5, 64.2, 0), App.Vector(1.1, 64.2, 0)), False)
sketch16.addGeometry(Part.LineSegment(App.Vector(1.1, 64.2, 0), App.Vector(0.4, 63, 0)), False)
sketch16.addGeometry(Part.LineSegment(App.Vector(18.5, 63, 0), App.Vector(0.4, 63, 0)), True)
sketch16.addConstraint(Sketcher.Constraint("Coincident", 0, 2, 1, 1))
sketch16.addConstraint(Sketcher.Constraint("Coincident", 1, 2, 2, 1))
sketch16.addConstraint(Sketcher.Constraint("Coincident", 2, 2, 3, 1))
sketch16.addConstraint(Sketcher.Constraint("Coincident", 3, 2, 0, 1))
sketch16.addConstraint(Sketcher.Constraint("Horizontal", 0))
sketch16.addConstraint(Sketcher.Constraint("Vertical", 1))
sketch16.addConstraint(Sketcher.Constraint("Horizontal", 2))
sketch16.addConstraint(Sketcher.Constraint("Horizontal", 4))
sketch16.addConstraint(Sketcher.Constraint("Coincident", 4, 1, 0, 2))
sketch16.addConstraint(Sketcher.Constraint("Equal", 0, 4))
sketch16.addConstraint(Sketcher.Constraint("Angle", 3, Q("-121 deg")))
sketch16.addConstraint(Sketcher.Constraint("DistanceY", -1, 1, 0, 2, Q("63 mm")))
sketch16.addConstraint(Sketcher.Constraint("DistanceX", 2, 2, 2, 1, Q("17.38 mm")))
sketch16.addConstraint(Sketcher.Constraint("DistanceY", 1, 1, 1, 2, Q("1.25 mm")))
sketch16.addConstraint(Sketcher.Constraint("DistanceX", -1, 1, 0, 2, Q("18.5 mm")))
groove15 = body.newObject("PartDesign::Groove", "Groove014")
groove15.Profile = sketch16
groove15.ReferenceAxis = (sketch16, ["Axis0"])
groove15.Angle = 360

sketch17 = body.newObject("Sketcher::SketchObject", "Sketch016")
sketch17.AttachmentSupport = (doc.getObject("YZ_Plane"), [""])
sketch17.MapMode = "FlatFace"
sketch17.AttachmentOffset = App.Placement(App.Vector(0, 0, -23), App.Rotation())
sketch17.addGeometry(Part.LineSegment(App.Vector(0.4, 63, 0), App.Vector(18.5, 63, 0)), False)
sketch17.addGeometry(Part.LineSegment(App.Vector(18.5, 63, 0), App.Vector(18.5, 64.2, 0)), False)
sketch17.addGeometry(Part.LineSegment(App.Vector(18.5, 64.2, 0), App.Vector(1.1, 64.2, 0)), False)
sketch17.addGeometry(Part.LineSegment(App.Vector(1.1, 64.2, 0), App.Vector(0.4, 63, 0)), False)
sketch17.addGeometry(Part.LineSegment(App.Vector(18.5, 63, 0), App.Vector(0.4, 63, 0)), True)
sketch17.addConstraint(Sketcher.Constraint("Coincident", 0, 2, 1, 1))
sketch17.addConstraint(Sketcher.Constraint("Coincident", 1, 2, 2, 1))
sketch17.addConstraint(Sketcher.Constraint("Coincident", 2, 2, 3, 1))
sketch17.addConstraint(Sketcher.Constraint("Coincident", 3, 2, 0, 1))
sketch17.addConstraint(Sketcher.Constraint("Horizontal", 0))
sketch17.addConstraint(Sketcher.Constraint("Vertical", 1))
sketch17.addConstraint(Sketcher.Constraint("Horizontal", 2))
sketch17.addConstraint(Sketcher.Constraint("Horizontal", 4))
sketch17.addConstraint(Sketcher.Constraint("Coincident", 4, 1, 0, 2))
sketch17.addConstraint(Sketcher.Constraint("Equal", 0, 4))
sketch17.addConstraint(Sketcher.Constraint("Angle", 3, Q("-121 deg")))
sketch17.addConstraint(Sketcher.Constraint("DistanceY", -1, 1, 0, 2, Q("63 mm")))
sketch17.addConstraint(Sketcher.Constraint("DistanceX", 2, 2, 2, 1, Q("17.38 mm")))
sketch17.addConstraint(Sketcher.Constraint("DistanceY", 1, 1, 1, 2, Q("1.25 mm")))
sketch17.addConstraint(Sketcher.Constraint("DistanceX", -1, 1, 0, 2, Q("18.5 mm")))
groove16 = body.newObject("PartDesign::Groove", "Groove015")
groove16.Profile = sketch17
groove16.ReferenceAxis = (sketch17, ["Axis0"])
groove16.Angle = 360

sketch18 = body.newObject("Sketcher::SketchObject", "Sketch017")
sketch18.AttachmentSupport = (doc.getObject("YZ_Plane"), [""])
sketch18.MapMode = "FlatFace"
sketch18.AttachmentOffset = App.Placement(App.Vector(0, 0, 73), App.Rotation())
sketch18.addGeometry(Part.LineSegment(App.Vector(0.4, 63, 0), App.Vector(18.5, 63, 0)), False)
sketch18.addGeometry(Part.LineSegment(App.Vector(18.5, 63, 0), App.Vector(18.5, 64.2, 0)), False)
sketch18.addGeometry(Part.LineSegment(App.Vector(18.5, 64.2, 0), App.Vector(1.1, 64.2, 0)), False)
sketch18.addGeometry(Part.LineSegment(App.Vector(1.1, 64.2, 0), App.Vector(0.4, 63, 0)), False)
sketch18.addGeometry(Part.LineSegment(App.Vector(18.5, 63, 0), App.Vector(0.4, 63, 0)), True)
sketch18.addConstraint(Sketcher.Constraint("Coincident", 0, 2, 1, 1))
sketch18.addConstraint(Sketcher.Constraint("Coincident", 1, 2, 2, 1))
sketch18.addConstraint(Sketcher.Constraint("Coincident", 2, 2, 3, 1))
sketch18.addConstraint(Sketcher.Constraint("Coincident", 3, 2, 0, 1))
sketch18.addConstraint(Sketcher.Constraint("Horizontal", 0))
sketch18.addConstraint(Sketcher.Constraint("Vertical", 1))
sketch18.addConstraint(Sketcher.Constraint("Horizontal", 2))
sketch18.addConstraint(Sketcher.Constraint("Horizontal", 4))
sketch18.addConstraint(Sketcher.Constraint("Coincident", 4, 1, 0, 2))
sketch18.addConstraint(Sketcher.Constraint("Equal", 0, 4))
sketch18.addConstraint(Sketcher.Constraint("Angle", 3, Q("-121 deg")))
sketch18.addConstraint(Sketcher.Constraint("DistanceY", -1, 1, 0, 2, Q("63 mm")))
sketch18.addConstraint(Sketcher.Constraint("DistanceX", 2, 2, 2, 1, Q("17.38 mm")))
sketch18.addConstraint(Sketcher.Constraint("DistanceY", 1, 1, 1, 2, Q("1.25 mm")))
sketch18.addConstraint(Sketcher.Constraint("DistanceX", -1, 1, 0, 2, Q("18.5 mm")))
groove17 = body.newObject("PartDesign::Groove", "Groove016")
groove17.Profile = sketch18
groove17.ReferenceAxis = (sketch18, ["Axis0"])
groove17.Angle = 360

sketch19 = body.newObject("Sketcher::SketchObject", "Sketch018")
sketch19.AttachmentSupport = (doc.getObject("YZ_Plane"), [""])
sketch19.MapMode = "FlatFace"
sketch19.AttachmentOffset = App.Placement(App.Vector(0, 0, 169), App.Rotation())
sketch19.addGeometry(Part.LineSegment(App.Vector(0.4, 63, 0), App.Vector(18.5, 63, 0)), False)
sketch19.addGeometry(Part.LineSegment(App.Vector(18.5, 63, 0), App.Vector(18.5, 64.2, 0)), False)
sketch19.addGeometry(Part.LineSegment(App.Vector(18.5, 64.2, 0), App.Vector(1.1, 64.2, 0)), False)
sketch19.addGeometry(Part.LineSegment(App.Vector(1.1, 64.2, 0), App.Vector(0.4, 63, 0)), False)
sketch19.addGeometry(Part.LineSegment(App.Vector(18.5, 63, 0), App.Vector(0.4, 63, 0)), True)
sketch19.addConstraint(Sketcher.Constraint("Coincident", 0, 2, 1, 1))
sketch19.addConstraint(Sketcher.Constraint("Coincident", 1, 2, 2, 1))
sketch19.addConstraint(Sketcher.Constraint("Coincident", 2, 2, 3, 1))
sketch19.addConstraint(Sketcher.Constraint("Coincident", 3, 2, 0, 1))
sketch19.addConstraint(Sketcher.Constraint("Horizontal", 0))
sketch19.addConstraint(Sketcher.Constraint("Vertical", 1))
sketch19.addConstraint(Sketcher.Constraint("Horizontal", 2))
sketch19.addConstraint(Sketcher.Constraint("Horizontal", 4))
sketch19.addConstraint(Sketcher.Constraint("Coincident", 4, 1, 0, 2))
sketch19.addConstraint(Sketcher.Constraint("Equal", 0, 4))
sketch19.addConstraint(Sketcher.Constraint("Angle", 3, Q("-121 deg")))
sketch19.addConstraint(Sketcher.Constraint("DistanceY", -1, 1, 0, 2, Q("63 mm")))
sketch19.addConstraint(Sketcher.Constraint("DistanceX", 2, 2, 2, 1, Q("17.38 mm")))
sketch19.addConstraint(Sketcher.Constraint("DistanceY", 1, 1, 1, 2, Q("1.25 mm")))
sketch19.addConstraint(Sketcher.Constraint("DistanceX", -1, 1, 0, 2, Q("18.5 mm")))
groove18 = body.newObject("PartDesign::Groove", "Groove017")
groove18.Profile = sketch19
groove18.ReferenceAxis = (sketch19, ["Axis0"])
groove18.Angle = 360

doc.recompute()
